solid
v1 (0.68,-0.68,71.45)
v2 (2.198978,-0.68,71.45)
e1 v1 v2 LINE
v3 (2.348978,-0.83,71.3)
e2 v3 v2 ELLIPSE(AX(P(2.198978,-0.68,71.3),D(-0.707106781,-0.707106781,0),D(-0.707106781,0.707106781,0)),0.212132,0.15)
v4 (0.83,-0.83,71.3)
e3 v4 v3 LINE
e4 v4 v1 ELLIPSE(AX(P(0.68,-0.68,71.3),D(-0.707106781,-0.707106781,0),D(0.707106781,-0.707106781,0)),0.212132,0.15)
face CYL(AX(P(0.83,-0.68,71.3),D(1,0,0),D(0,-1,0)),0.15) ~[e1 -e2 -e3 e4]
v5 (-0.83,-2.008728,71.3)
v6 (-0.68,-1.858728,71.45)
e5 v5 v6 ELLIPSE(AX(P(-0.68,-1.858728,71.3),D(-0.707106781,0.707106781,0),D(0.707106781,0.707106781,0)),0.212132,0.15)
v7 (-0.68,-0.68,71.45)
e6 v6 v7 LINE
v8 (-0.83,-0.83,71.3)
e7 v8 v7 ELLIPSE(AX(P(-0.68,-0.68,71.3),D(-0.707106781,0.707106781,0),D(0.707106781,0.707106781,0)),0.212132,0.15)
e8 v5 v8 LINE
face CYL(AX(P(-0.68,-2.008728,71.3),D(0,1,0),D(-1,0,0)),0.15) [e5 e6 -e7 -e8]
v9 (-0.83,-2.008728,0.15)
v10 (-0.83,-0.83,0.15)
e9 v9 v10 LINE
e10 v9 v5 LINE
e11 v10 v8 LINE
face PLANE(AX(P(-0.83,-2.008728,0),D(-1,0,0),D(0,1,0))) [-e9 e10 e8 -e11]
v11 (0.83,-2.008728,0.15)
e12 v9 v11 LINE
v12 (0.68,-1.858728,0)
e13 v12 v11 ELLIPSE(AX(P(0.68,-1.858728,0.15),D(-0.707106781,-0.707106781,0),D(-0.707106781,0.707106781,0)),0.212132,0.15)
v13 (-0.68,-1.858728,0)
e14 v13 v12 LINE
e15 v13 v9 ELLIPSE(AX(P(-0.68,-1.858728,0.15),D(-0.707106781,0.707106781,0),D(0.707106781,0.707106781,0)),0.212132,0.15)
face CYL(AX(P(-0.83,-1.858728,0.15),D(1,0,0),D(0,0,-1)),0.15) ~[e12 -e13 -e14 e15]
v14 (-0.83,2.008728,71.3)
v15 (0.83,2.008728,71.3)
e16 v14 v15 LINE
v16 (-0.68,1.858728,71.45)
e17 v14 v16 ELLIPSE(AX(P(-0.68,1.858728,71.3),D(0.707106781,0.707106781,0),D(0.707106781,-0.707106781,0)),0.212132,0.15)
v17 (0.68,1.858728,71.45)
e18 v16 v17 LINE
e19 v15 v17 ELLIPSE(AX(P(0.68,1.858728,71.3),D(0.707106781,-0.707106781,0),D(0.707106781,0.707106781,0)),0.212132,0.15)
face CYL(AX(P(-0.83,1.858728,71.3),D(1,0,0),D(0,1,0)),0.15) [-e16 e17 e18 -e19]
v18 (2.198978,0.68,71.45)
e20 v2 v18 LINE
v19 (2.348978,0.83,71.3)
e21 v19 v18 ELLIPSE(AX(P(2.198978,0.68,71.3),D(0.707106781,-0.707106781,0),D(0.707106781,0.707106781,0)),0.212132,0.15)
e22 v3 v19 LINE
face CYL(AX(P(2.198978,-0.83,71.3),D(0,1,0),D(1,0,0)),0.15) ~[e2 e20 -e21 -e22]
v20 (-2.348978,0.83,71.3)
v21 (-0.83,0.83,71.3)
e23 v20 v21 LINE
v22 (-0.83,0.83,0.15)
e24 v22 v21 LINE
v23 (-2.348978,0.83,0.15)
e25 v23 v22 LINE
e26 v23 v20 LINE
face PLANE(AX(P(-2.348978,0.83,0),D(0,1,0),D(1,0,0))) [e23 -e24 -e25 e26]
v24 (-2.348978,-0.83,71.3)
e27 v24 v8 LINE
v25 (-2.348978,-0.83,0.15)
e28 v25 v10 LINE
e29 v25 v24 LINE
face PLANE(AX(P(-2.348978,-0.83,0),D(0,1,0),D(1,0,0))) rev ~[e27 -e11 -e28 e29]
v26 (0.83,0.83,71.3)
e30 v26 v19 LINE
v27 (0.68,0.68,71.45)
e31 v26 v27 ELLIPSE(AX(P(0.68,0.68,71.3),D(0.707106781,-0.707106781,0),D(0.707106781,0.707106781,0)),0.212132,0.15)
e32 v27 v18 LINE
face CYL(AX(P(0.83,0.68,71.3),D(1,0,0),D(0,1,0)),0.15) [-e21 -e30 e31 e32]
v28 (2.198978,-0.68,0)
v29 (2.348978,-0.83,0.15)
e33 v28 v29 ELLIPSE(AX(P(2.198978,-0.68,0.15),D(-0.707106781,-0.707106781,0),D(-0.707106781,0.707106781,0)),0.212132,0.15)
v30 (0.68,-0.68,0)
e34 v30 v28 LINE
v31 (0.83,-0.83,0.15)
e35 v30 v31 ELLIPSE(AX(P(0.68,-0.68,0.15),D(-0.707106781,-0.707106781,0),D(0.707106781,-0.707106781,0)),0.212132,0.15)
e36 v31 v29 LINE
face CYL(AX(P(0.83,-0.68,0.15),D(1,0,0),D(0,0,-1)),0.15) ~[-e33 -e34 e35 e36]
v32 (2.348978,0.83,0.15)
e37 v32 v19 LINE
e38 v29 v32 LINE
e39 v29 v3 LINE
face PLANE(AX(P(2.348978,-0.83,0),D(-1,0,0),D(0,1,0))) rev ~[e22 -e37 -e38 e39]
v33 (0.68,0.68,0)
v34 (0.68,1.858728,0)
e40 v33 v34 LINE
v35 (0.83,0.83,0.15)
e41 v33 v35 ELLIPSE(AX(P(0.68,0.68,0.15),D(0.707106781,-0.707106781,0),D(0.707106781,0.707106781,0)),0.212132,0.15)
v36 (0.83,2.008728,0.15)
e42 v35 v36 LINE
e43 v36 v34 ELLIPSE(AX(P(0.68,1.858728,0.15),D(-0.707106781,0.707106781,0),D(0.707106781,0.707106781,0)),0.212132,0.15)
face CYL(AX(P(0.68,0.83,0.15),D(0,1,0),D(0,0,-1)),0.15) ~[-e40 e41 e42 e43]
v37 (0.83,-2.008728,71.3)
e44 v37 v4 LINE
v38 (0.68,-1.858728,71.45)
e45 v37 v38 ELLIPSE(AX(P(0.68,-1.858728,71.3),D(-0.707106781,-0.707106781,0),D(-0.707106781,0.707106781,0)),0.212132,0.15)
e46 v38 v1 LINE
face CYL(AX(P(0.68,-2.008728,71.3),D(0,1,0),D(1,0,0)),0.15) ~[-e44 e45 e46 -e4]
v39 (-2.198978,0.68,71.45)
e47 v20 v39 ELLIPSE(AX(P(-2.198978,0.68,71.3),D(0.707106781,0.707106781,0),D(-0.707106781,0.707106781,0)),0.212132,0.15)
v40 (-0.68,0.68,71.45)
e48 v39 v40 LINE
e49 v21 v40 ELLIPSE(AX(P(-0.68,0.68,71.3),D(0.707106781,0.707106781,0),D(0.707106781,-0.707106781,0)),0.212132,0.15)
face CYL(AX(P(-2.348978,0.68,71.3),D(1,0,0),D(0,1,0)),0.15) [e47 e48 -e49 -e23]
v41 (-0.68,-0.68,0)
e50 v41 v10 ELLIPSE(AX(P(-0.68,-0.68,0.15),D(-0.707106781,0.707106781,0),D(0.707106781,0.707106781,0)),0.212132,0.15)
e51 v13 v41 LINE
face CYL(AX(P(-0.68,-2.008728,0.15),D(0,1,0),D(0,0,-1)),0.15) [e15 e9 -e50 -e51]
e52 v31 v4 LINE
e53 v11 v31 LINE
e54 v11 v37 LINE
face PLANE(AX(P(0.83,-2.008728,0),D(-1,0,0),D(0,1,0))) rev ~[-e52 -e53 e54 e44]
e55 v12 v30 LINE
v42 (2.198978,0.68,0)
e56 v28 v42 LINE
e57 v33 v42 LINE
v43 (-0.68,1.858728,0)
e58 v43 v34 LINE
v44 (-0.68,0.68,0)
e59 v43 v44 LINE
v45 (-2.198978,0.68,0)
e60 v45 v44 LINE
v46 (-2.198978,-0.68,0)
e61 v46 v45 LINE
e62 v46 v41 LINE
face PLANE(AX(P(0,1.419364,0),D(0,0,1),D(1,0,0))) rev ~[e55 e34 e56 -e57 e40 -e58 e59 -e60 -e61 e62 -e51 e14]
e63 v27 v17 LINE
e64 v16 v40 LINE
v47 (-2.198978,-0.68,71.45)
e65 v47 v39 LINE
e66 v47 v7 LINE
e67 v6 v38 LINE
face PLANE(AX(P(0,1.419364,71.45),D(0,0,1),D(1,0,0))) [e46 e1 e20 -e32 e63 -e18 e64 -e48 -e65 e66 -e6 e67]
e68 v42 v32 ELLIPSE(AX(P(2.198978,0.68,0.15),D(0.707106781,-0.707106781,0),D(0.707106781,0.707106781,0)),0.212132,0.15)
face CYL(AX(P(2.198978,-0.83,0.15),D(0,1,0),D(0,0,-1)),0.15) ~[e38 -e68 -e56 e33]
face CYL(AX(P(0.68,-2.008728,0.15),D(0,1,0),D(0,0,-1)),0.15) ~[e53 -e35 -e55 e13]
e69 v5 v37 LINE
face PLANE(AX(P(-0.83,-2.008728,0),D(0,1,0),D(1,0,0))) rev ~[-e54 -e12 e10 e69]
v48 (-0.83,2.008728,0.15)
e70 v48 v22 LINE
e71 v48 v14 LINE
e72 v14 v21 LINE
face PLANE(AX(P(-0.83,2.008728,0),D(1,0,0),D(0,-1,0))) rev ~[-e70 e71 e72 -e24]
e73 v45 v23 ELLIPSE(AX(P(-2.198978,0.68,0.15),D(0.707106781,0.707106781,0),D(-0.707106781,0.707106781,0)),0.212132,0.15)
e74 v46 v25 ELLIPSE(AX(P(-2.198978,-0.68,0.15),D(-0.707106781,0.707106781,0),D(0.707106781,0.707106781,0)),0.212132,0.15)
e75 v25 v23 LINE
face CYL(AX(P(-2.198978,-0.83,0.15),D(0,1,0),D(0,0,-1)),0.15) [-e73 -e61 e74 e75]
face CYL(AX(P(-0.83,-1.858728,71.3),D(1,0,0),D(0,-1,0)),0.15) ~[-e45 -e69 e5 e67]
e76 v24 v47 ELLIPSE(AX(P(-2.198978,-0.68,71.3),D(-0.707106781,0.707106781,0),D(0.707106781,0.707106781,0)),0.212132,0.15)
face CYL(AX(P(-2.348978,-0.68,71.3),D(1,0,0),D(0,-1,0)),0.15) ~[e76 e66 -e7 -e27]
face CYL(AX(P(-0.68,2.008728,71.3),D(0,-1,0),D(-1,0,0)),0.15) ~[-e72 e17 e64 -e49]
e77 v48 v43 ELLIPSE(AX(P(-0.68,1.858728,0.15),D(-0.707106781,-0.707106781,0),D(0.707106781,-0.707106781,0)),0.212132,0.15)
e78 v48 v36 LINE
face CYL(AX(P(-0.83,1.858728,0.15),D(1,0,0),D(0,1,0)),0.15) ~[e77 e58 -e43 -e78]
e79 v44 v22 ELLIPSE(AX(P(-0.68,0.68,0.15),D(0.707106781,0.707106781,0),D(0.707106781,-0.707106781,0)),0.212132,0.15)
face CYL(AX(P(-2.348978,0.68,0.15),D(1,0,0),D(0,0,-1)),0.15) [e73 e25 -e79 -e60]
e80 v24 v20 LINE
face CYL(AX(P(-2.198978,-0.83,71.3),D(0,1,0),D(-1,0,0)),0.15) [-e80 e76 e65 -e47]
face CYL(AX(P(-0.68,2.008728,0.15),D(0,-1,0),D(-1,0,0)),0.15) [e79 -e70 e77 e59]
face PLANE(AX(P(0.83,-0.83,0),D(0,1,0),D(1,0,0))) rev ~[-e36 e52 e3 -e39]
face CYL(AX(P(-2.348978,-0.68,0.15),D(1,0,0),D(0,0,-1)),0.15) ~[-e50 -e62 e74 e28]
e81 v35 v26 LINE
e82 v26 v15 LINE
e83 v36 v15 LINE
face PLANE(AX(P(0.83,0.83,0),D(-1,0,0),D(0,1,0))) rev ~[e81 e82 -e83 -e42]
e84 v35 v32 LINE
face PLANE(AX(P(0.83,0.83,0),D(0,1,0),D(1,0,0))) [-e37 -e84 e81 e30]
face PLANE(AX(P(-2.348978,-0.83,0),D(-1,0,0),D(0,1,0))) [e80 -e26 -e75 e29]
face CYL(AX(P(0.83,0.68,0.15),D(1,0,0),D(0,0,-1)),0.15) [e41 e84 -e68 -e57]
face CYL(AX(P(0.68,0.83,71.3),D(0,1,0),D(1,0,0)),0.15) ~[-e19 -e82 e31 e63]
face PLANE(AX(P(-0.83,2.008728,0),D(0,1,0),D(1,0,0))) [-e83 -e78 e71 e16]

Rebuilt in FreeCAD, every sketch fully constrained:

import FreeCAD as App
import Part
import Sketcher
from FreeCAD import Vector


def edges_at(feature, points):
    """Names of the edges that pass closest to the given points."""
    edges = feature.Shape.Edges
    near = lambda p: min(range(len(edges)), key=lambda i: edges[i].distToShape(Part.Vertex(*p))[0])
    return sorted({f"Edge{near(p) + 1}" for p in points})


def add_polygon(sketch, points):
    """Adds a closed chain of lines whose ends are joined by coincident constraints."""
    first, n = sketch.GeometryCount, len(points)
    for a, b in zip(points, points[1:] + points[:1]):
        sketch.addGeometry(Part.LineSegment(App.Vector(*a, 0), App.Vector(*b, 0)), False)
    for i in range(n):
        sketch.addConstraint(Sketcher.Constraint("Coincident", first + i, 2, first + (i + 1) % n, 1))

doc = App.newDocument("Part")
body = doc.addObject("PartDesign::Body", "Body")

sketch1 = body.newObject("Sketcher::SketchObject", "Sketch")
sketch1.AttachmentSupport = (doc.getObject("XY_Plane"), [""])
sketch1.MapMode = "FlatFace"
add_polygon(sketch1, [(-0.83, 2.008728), (-0.83, 0.83), (-2.348978, 0.83), (-2.348978, -0.83), (-0.83, -0.83), (-0.83, -2.008728), (0.83, -2.008728), (0.83, -0.83), (2.348978, -0.83), (2.348978, 0.83), (0.83, 0.83), (0.83, 2.008728)])
sketch1.addConstraint(Sketcher.Constraint("Vertical", 0))
sketch1.addConstraint(Sketcher.Constraint("Horizontal", 1))
sketch1.addConstraint(Sketcher.Constraint("Vertical", 2))
sketch1.addConstraint(Sketcher.Constraint("Horizontal", 3))
sketch1.addConstraint(Sketcher.Constraint("Vertical", 4))
sketch1.addConstraint(Sketcher.Constraint("Horizontal", 5))
sketch1.addConstraint(Sketcher.Constraint("Vertical", 6))
sketch1.addConstraint(Sketcher.Constraint("Horizontal", 7))
sketch1.addConstraint(Sketcher.Constraint("Vertical", 8))
sketch1.addConstraint(Sketcher.Constraint("Horizontal", 9))
sketch1.addConstraint(Sketcher.Constraint("Vertical", 10))
sketch1.addConstraint(Sketcher.Constraint("Horizontal", 11))
sketch1.addConstraint(Sketcher.Constraint("Symmetric", 0, 2, 6, 2, -1, 1))
sketch1.addConstraint(Sketcher.Constraint("Symmetric", 2, 2, 8, 2, -1, 1))
sketch1.addConstraint(Sketcher.Constraint("Symmetric", 4, 2, 10, 2, -1, 1))
sketch1.addConstraint(Sketcher.Constraint("Symmetric", 3, 2, 6, 2, -2))
sketch1.addConstraint(Sketcher.Constraint("Equal", 11, 2))
sketch1.addConstraint(Sketcher.Constraint("DistanceX", 5, 1, 5, 2, 1.66))
sketch1.addConstraint(Sketcher.Constraint("DistanceY", 0, 2, 0, 1, 1.178728))
sketch1.addConstraint(Sketcher.Constraint("DistanceX", 1, 2, 1, 1, 1.518978))
pad1 = body.newObject("PartDesign::Pad", "Pad")
pad1.Profile = sketch1
pad1.Length = 71.45
doc.recompute()

fillet = body.newObject("PartDesign::Fillet", "Fillet")
fillet.Base = (pad1, edges_at(pad1, [
    (-2.349, 0, 71.45),
    (-1.589, 0.83, 71.45),
    (-0.83, 1.419, 71.45),
    (0, 2.009, 71.45),
    (0.83, 1.419, 71.45),
    (2.349, 0, 71.45),
    (1.589, 0.83, 71.45),
    (1.589, -0.83, 71.45),
    (0.83, -1.419, 71.45),
    (0, -2.009, 71.45),
    (-0.83, -1.419, 71.45),
    (-1.589, -0.83, 71.45),
]))
fillet.Radius = 0.15
doc.recompute()

fillet2 = body.newObject("PartDesign::Fillet", "Fillet001")
fillet2.Base = (fillet, edges_at(fillet, [
    (-1.589, -0.83, 0),
    (-2.349, 0, 0),
    (-1.589, 0.83, 0),
    (-0.83, 1.419, 0),
    (0, 2.009, 0),
    (0.83, 1.419, 0),
    (1.589, 0.83, 0),
    (2.349, 0, 0),
    (1.589, -0.83, 0),
    (0.83, -1.419, 0),
    (0, -2.009, 0),
    (-0.83, -1.419, 0),
]))
fillet2.Radius = 0.15

doc.recompute()
